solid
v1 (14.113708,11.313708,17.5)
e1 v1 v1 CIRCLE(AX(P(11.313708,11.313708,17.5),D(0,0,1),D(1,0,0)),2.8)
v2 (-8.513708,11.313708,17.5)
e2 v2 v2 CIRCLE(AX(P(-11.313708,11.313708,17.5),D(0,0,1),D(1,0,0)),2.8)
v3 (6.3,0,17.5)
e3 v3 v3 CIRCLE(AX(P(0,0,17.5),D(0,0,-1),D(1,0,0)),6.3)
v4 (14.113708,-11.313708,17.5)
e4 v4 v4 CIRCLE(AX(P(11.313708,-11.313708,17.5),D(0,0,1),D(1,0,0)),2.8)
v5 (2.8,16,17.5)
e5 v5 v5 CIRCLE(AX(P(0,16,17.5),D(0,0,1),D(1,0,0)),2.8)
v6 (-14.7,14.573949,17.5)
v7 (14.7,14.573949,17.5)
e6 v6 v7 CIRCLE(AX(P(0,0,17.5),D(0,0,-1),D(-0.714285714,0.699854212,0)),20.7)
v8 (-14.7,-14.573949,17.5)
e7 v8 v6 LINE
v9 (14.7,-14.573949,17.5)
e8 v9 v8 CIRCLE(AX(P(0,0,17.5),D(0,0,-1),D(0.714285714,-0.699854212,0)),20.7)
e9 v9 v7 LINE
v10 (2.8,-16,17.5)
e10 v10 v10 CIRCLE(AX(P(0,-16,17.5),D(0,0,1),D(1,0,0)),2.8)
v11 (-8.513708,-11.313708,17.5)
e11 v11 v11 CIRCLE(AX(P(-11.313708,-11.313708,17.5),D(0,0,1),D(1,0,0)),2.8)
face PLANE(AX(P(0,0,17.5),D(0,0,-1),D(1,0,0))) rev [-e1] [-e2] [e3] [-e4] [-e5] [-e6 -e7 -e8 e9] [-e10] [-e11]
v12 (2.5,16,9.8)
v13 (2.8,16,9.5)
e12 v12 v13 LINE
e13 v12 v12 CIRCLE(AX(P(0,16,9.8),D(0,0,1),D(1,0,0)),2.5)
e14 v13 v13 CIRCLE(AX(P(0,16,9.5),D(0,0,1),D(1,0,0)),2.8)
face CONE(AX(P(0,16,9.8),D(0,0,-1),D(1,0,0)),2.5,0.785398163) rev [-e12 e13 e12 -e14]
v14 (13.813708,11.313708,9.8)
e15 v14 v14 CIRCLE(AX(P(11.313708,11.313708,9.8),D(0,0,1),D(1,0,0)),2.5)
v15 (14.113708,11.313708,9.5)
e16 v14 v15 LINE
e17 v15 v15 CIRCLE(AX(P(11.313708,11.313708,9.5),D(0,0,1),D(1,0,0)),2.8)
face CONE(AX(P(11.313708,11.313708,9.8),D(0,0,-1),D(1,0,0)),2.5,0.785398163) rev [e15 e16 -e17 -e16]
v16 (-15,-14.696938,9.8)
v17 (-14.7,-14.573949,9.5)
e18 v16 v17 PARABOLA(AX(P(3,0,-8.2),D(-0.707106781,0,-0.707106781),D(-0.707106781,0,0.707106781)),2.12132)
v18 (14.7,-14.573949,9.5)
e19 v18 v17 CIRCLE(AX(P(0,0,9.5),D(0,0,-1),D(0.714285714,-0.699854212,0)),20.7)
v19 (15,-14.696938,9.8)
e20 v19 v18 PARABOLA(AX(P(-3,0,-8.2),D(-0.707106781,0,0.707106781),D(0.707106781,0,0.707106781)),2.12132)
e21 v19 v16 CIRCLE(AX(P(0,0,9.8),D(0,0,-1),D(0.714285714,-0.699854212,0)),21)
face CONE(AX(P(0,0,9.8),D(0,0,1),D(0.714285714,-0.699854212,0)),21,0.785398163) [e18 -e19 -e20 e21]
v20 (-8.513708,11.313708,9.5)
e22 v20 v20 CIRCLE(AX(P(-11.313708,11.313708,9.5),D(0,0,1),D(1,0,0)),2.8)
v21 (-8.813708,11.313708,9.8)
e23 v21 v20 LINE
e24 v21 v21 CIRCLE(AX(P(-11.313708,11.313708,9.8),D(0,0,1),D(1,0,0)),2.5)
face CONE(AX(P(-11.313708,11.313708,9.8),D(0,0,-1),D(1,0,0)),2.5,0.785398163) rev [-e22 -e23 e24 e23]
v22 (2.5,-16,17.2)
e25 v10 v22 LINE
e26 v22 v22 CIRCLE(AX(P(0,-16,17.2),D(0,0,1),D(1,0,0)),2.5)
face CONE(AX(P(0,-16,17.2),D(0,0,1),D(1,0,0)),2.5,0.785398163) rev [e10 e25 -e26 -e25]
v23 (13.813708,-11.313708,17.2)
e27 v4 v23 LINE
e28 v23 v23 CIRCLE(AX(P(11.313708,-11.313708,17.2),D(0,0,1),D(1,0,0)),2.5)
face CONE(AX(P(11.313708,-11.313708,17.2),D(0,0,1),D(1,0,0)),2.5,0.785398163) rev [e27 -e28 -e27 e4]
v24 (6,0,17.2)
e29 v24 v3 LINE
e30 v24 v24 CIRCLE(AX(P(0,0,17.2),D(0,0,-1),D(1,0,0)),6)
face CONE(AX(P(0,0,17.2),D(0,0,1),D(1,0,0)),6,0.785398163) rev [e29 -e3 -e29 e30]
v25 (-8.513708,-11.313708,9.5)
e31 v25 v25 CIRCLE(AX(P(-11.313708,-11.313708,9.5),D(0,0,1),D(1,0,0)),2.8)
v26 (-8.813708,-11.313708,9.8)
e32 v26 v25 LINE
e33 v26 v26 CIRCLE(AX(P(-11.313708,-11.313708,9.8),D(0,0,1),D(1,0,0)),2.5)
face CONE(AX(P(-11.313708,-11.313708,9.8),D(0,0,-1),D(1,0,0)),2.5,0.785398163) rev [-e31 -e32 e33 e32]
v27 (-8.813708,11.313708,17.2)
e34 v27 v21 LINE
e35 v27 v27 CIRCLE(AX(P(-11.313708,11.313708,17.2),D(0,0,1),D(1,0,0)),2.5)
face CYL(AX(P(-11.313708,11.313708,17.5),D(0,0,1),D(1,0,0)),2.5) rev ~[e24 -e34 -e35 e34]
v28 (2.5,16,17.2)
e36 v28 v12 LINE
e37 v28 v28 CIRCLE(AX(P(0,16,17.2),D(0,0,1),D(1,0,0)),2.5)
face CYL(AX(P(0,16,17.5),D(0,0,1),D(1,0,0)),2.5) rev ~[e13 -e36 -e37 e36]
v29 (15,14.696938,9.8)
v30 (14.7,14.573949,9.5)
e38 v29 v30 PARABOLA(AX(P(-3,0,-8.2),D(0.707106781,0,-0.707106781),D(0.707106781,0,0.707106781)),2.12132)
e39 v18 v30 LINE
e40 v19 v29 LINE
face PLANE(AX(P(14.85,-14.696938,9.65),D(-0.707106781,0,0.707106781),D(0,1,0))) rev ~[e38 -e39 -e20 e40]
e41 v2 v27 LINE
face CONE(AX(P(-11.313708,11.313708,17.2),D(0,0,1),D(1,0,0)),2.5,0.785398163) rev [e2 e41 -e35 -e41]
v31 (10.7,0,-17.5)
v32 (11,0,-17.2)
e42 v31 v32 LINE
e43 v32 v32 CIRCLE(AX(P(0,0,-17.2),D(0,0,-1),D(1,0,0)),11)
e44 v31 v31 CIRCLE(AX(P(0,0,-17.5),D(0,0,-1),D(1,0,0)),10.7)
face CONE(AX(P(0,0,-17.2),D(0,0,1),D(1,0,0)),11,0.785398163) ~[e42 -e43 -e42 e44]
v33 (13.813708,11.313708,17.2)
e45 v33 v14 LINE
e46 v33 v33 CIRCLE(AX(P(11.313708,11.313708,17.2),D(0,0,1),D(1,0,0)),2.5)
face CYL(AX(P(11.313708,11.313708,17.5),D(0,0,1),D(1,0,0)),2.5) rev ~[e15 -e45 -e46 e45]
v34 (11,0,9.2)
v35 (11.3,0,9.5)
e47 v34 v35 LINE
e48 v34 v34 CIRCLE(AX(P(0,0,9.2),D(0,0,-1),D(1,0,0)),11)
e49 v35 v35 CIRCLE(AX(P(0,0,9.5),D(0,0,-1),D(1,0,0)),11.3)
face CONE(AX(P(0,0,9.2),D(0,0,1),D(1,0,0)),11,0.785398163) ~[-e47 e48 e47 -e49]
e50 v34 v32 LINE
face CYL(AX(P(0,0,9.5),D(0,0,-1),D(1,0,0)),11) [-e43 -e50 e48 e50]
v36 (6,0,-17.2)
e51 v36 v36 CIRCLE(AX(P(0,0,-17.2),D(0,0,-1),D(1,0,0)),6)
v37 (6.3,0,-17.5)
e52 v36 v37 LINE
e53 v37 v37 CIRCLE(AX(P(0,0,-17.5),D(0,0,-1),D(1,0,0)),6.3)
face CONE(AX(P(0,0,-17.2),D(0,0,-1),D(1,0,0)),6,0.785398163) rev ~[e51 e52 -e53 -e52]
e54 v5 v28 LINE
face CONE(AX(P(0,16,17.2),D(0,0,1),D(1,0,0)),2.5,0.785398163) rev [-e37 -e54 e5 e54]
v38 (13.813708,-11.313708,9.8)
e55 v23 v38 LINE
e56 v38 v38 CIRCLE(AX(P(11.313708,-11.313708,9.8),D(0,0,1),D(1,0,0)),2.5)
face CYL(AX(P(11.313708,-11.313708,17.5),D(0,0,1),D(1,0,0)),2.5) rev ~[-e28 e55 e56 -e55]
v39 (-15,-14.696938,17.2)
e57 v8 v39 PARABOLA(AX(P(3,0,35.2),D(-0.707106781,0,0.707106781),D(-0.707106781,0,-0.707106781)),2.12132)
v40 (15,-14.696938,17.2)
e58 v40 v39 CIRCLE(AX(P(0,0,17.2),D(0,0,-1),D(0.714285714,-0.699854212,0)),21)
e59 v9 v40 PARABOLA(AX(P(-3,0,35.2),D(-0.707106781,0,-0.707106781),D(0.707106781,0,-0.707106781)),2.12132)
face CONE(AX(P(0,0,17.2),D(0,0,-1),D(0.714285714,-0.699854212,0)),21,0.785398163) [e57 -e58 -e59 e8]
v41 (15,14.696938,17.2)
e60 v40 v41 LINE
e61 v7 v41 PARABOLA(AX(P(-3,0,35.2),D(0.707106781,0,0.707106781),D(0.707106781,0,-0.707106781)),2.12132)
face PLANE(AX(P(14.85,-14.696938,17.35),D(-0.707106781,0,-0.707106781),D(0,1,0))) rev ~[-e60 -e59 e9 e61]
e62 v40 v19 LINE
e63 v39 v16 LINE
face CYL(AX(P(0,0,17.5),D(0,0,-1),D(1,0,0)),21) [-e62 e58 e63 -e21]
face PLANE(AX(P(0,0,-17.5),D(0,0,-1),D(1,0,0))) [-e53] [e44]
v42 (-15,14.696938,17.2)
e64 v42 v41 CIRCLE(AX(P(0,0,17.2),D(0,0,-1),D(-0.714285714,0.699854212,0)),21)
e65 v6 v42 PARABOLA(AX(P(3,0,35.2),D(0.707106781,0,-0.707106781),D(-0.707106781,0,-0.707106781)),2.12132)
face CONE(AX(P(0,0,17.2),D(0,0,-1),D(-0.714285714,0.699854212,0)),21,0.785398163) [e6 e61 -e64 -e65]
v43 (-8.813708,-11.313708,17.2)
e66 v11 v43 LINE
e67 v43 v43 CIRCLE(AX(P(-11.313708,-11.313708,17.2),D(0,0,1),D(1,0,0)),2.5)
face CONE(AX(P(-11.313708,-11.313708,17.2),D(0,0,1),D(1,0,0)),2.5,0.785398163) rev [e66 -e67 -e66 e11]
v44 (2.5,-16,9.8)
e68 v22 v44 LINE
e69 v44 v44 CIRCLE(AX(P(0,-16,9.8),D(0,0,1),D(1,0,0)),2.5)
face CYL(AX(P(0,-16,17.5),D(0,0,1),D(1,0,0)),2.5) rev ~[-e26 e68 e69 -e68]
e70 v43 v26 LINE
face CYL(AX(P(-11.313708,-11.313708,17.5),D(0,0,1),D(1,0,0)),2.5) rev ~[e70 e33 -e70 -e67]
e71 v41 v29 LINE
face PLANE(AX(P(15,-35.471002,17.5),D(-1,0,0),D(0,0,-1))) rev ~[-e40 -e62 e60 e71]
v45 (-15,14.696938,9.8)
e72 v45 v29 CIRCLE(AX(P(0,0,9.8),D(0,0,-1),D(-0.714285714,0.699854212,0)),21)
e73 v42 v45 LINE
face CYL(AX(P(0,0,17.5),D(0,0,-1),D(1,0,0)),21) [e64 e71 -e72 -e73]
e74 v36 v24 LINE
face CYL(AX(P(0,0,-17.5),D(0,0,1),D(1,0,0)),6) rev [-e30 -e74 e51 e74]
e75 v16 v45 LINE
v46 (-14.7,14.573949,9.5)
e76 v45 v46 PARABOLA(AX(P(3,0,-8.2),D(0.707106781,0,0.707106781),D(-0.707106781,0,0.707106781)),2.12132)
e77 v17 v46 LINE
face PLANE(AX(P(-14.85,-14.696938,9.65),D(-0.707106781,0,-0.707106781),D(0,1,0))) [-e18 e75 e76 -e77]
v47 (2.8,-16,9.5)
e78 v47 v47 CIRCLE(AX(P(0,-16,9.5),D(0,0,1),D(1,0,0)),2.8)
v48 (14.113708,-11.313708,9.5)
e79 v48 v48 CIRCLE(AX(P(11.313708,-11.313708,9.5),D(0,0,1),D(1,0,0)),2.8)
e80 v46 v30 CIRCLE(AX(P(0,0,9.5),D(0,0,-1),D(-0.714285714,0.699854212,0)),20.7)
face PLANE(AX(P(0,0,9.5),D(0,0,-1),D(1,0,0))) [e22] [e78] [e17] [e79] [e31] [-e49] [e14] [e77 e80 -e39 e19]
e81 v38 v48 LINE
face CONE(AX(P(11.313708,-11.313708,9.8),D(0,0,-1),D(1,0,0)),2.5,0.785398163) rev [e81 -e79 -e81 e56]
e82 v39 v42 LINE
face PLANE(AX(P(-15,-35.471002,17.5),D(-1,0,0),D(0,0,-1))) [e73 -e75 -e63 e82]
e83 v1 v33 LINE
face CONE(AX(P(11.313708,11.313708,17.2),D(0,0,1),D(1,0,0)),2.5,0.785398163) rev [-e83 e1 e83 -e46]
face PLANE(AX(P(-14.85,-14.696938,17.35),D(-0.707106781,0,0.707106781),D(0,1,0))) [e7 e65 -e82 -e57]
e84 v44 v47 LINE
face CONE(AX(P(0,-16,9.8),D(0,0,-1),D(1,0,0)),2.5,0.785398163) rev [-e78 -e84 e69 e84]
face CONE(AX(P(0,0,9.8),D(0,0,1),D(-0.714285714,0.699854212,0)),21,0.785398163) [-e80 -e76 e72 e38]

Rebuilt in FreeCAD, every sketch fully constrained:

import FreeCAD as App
import Part
import Sketcher
from FreeCAD import Vector


def edges_at(feature, points):
    """Names of the edges that pass closest to the given points."""
    edges = feature.Shape.Edges
    near = lambda p: min(range(len(edges)), key=lambda i: edges[i].distToShape(Part.Vertex(*p))[0])
    return sorted({f"Edge{near(p) + 1}" for p in points})


def add_polygon(sketch, points):
    """Adds a closed chain of lines whose ends are joined by coincident constraints."""
    first, n = sketch.GeometryCount, len(points)
    for a, b in zip(points, points[1:] + points[:1]):
        sketch.addGeometry(Part.LineSegment(App.Vector(*a, 0), App.Vector(*b, 0)), False)
    for i in range(n):
        sketch.addConstraint(Sketcher.Constraint("Coincident", first + i, 2, first + (i + 1) % n, 1))

doc = App.newDocument("Part")
body = doc.addObject("PartDesign::Body", "Body")

# Sketch on YZ plane
sketch1 = doc.addObject("Sketcher::SketchObject", "Sketch")
body.addObject(sketch1)
sketch1.AttachmentSupport = (doc.YZ_Plane, [""])
sketch1.MapMode = "FlatFace"
add_polygon(sketch1, [(6, 17.5), (6, -17.5), (11, -17.5), (11, 9.5), (21, 9.5), (21, 17.5)])  # lines 0-5
sketch1.addConstraint([
    Sketcher.Constraint("Vertical", 0),
    Sketcher.Constraint("Horizontal", 1),
    Sketcher.Constraint("Vertical", 2),
    Sketcher.Constraint("Horizontal", 3),
    Sketcher.Constraint("Vertical", 4),
    Sketcher.Constraint("Horizontal", 5),
    Sketcher.Constraint("DistanceX", 1, 1, 1, 2, 5.0),
    Sketcher.Constraint("DistanceX", 3, 1, 3, 2, 10.0),
    Sketcher.Constraint("DistanceY", 0, 2, 0, 1, 35.0),
    Sketcher.Constraint("DistanceY", 2, 1, 2, 2, 27.0),
    Sketcher.Constraint("DistanceX", -1, 1, 0, 2, 6.0),
    Sketcher.Constraint("DistanceY", 0, 2, -1, 1, 17.5),
])
revolution = doc.addObject("PartDesign::Revolution", "Revolution")
body.addObject(revolution)
revolution.Profile = sketch1
revolution.ReferenceAxis = (sketch1, ["V_Axis"])
revolution.Angle = 360

# Sketch on XZ plane
sketch2 = doc.addObject("Sketcher::SketchObject", "Sketch001")
body.addObject(sketch2)
sketch2.AttachmentSupport = (doc.XZ_Plane, [""])
sketch2.MapMode = "FlatFace"
add_polygon(sketch2, [(-21, 9.5), (-21, 17.5), (-15, 17.5), (-15, 9.5)])  # lines 0-3
add_polygon(sketch2, [(15, 9.5), (15, 17.5), (21, 17.5), (21, 9.5)])  # lines 4-7
sketch2.addConstraint([
    Sketcher.Constraint("Vertical", 0),
    Sketcher.Constraint("Horizontal", 1),
    Sketcher.Constraint("Vertical", 2),
    Sketcher.Constraint("Horizontal", 3),
    Sketcher.Constraint("Vertical", 4),
    Sketcher.Constraint("Horizontal", 5),
    Sketcher.Constraint("Vertical", 6),
    Sketcher.Constraint("Horizontal", 7),
    Sketcher.Constraint("Symmetric", 1, 2, 4, 2, -2),
    Sketcher.Constraint("Symmetric", 3, 2, 6, 2, -2),
    Sketcher.Constraint("DistanceX", 1, 1, 1, 2, 6.0),
    Sketcher.Constraint("DistanceY", 0, 1, 0, 2, 8.0),
    Sketcher.Constraint("DistanceX", 0, 2, -1, 1, 21.0),
    Sketcher.Constraint("DistanceY", -1, 1, 0, 2, 17.5),
])
pocket1 = doc.addObject("PartDesign::Pocket", "Pocket")
body.addObject(pocket1)
pocket1.Profile = sketch2
pocket1.Type = "ThroughAll"
pocket1.Midplane = True

# Sketch on XY plane
sketch3 = doc.addObject("Sketcher::SketchObject", "Sketch002")
body.addObject(sketch3)
sketch3.AttachmentSupport = (doc.XY_Plane, [""])
sketch3.MapMode = "FlatFace"
sketch3.AttachmentOffset = App.Placement(Vector(0, 0, 17.5), App.Rotation())
sketch3.addGeometry([
    Part.Circle(Vector(0, 16, 0), Vector(0, 0, 1), 2.5),  # 0
    Part.Circle(Vector(11.313708, 11.313708, 0), Vector(0, 0, 1), 2.5),  # 1
    Part.Circle(Vector(11.313708, -11.313708, 0), Vector(0, 0, 1), 2.5),  # 2
    Part.Circle(Vector(0, -16, 0), Vector(0, 0, 1), 2.5),  # 3
    Part.Circle(Vector(-11.313708, -11.313708, 0), Vector(0, 0, 1), 2.5),  # 4
    Part.Circle(Vector(-11.313708, 11.313708, 0), Vector(0, 0, 1), 2.5),  # 5
], False)
sketch3.addConstraint([
    Sketcher.Constraint("Equal", 0, 1),
    Sketcher.Constraint("Equal", 1, 2),
    Sketcher.Constraint("Equal", 2, 3),
    Sketcher.Constraint("Equal", 3, 4),
    Sketcher.Constraint("Equal", 4, 5),
    Sketcher.Constraint("Symmetric", 0, 3, 3, 3, -1, 1),
    Sketcher.Constraint("Symmetric", 1, 3, 4, 3, -1, 1),
    Sketcher.Constraint("Symmetric", 2, 3, 5, 3, -1, 1),
    Sketcher.Constraint("Symmetric", 2, 3, 4, 3, -2),
    Sketcher.Constraint("PointOnObject", 0, 3, -2),
    Sketcher.Constraint("Diameter", 0, 5.0),
    Sketcher.Constraint("DistanceY", -1, 1, 0, 3, 16.0),
    Sketcher.Constraint("DistanceX", -1, 1, 1, 3, 11.313708),
    Sketcher.Constraint("DistanceY", -1, 1, 1, 3, 11.313708),
])
pocket2 = doc.addObject("PartDesign::Pocket", "Pocket001")
body.addObject(pocket2)
pocket2.Profile = sketch3
pocket2.Length = 10
doc.recompute()

chamfer = doc.addObject("PartDesign::Chamfer", "Chamfer")
body.addObject(chamfer)
chamfer.Base = (pocket2, edges_at(pocket2, [
    (0, -21, 9.5),
    (-15, 0, 9.5),
    (0, -21, 17.5),
    (-15, 0, 17.5),
    (0, 21, 9.5),
    (15, 0, 9.5),
    (0, 21, 17.5),
    (15, 0, 17.5),
    (-11, 0, -17.5),
    (-11, 0, 9.5),
    (-2.5, 16, 9.5),
    (-2.5, 16, 17.5),
    (8.814, 11.314, 9.5),
    (-6, 0, 17.5),
    (8.814, 11.314, 17.5),
    (8.814, -11.314, 9.5),
    (8.814, -11.314, 17.5),
    (-2.5, -16, 9.5),
    (-6, 0, -17.5),
    (-2.5, -16, 17.5),
    (-13.814, -11.314, 9.5),
    (-13.814, -11.314, 17.5),
    (-13.814, 11.314, 9.5),
    (-13.814, 11.314, 17.5),
]))
chamfer.Size = 0.3

doc.recompute()
